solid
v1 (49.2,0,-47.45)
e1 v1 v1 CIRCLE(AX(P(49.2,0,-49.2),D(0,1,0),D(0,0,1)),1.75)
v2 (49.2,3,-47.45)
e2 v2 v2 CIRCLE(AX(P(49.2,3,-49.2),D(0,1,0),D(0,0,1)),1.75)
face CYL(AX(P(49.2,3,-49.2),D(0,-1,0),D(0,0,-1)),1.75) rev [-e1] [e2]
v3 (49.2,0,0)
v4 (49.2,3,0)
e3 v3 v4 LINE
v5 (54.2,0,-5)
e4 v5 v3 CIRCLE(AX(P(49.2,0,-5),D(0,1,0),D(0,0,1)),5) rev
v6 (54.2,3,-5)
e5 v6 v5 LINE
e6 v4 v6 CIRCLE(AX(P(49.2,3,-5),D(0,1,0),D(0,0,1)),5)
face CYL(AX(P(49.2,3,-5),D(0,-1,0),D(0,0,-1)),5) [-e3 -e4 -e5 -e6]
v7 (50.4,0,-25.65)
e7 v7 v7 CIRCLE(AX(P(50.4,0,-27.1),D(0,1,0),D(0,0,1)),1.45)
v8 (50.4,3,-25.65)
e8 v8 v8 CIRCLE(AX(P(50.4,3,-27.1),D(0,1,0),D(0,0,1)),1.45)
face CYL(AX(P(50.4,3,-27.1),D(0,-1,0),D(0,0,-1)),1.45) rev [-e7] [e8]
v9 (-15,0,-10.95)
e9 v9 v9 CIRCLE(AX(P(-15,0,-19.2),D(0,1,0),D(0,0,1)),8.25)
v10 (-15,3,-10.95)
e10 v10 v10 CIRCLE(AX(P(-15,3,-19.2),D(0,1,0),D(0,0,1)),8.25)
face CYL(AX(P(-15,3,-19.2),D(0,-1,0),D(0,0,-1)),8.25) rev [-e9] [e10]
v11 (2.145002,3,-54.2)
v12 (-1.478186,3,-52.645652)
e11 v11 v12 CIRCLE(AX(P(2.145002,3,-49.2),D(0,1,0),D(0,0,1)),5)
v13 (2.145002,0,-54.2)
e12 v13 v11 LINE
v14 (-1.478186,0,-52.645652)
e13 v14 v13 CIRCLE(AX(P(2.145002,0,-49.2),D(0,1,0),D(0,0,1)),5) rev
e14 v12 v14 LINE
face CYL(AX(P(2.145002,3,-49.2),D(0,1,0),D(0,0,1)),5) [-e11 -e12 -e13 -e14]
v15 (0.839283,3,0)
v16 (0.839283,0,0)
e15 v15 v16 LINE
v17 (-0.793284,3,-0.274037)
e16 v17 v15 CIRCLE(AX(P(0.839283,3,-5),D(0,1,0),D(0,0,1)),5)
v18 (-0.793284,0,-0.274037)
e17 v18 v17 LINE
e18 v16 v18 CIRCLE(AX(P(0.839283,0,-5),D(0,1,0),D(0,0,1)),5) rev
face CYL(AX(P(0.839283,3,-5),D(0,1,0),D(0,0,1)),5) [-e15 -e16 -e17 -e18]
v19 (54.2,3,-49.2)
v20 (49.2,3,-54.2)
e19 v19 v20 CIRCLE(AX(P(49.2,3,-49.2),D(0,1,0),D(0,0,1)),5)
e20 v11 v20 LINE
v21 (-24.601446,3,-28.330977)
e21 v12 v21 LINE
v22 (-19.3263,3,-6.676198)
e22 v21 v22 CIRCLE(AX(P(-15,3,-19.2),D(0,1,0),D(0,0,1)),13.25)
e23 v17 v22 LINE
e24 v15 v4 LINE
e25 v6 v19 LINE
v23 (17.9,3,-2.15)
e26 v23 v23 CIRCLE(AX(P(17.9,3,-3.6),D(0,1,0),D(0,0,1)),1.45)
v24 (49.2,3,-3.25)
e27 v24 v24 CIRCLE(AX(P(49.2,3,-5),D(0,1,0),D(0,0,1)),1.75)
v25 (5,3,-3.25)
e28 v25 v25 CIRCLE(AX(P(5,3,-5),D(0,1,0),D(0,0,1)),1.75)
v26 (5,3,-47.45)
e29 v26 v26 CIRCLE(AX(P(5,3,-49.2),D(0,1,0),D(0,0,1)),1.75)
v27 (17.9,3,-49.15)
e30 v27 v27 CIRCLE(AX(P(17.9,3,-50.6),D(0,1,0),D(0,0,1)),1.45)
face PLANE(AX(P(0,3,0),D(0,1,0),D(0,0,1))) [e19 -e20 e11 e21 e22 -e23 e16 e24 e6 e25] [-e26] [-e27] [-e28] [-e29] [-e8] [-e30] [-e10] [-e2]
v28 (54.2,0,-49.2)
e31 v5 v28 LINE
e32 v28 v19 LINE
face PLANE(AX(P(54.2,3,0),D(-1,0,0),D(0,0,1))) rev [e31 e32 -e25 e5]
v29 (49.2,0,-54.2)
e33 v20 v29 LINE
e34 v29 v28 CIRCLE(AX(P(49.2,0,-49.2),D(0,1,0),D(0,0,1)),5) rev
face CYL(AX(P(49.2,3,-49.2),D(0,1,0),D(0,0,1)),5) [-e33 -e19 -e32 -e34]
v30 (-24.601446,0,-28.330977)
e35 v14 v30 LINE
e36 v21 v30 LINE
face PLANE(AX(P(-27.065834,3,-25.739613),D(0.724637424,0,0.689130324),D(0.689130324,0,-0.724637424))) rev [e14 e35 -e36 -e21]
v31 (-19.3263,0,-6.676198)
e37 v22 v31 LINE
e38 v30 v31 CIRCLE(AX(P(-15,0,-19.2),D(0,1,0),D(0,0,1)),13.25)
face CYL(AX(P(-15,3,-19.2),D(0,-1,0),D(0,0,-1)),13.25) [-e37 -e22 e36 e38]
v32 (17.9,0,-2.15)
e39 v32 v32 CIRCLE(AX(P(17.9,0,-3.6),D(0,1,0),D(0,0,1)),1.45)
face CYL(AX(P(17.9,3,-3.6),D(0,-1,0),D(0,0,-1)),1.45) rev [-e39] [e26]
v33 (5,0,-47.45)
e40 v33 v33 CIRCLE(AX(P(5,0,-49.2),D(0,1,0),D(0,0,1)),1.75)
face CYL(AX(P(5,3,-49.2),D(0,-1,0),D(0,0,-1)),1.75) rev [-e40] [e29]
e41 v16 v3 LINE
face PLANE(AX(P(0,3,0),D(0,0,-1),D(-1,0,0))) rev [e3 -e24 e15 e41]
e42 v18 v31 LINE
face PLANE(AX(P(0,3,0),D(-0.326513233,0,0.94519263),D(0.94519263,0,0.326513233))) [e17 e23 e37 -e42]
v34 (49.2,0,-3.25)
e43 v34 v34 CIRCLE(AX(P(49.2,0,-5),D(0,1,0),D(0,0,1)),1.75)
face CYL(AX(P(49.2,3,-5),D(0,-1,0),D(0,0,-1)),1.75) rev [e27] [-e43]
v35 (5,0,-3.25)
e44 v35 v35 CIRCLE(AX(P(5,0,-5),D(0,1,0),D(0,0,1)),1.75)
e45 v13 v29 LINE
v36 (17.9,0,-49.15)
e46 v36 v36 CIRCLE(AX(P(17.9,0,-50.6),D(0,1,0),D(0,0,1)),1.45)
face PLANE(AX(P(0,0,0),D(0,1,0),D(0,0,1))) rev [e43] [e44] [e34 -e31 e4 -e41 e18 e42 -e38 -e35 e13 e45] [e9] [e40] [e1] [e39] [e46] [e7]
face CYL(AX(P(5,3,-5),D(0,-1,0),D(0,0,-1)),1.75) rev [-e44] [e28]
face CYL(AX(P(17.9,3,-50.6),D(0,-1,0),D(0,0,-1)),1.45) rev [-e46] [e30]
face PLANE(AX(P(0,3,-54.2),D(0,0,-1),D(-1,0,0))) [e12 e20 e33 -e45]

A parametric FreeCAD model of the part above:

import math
import FreeCAD as App
import Part
import Sketcher

V = App.Vector


def edges_at(feature, points):
    """Names of the edges that pass closest to the given points."""
    edges = feature.Shape.Edges
    near = lambda p: min(range(len(edges)), key=lambda i: edges[i].distToShape(Part.Vertex(*p))[0])
    return sorted({f"Edge{near(p) + 1}" for p in points})

doc = App.newDocument("Part")
body = doc.addObject("PartDesign::Body", "Body")

sketch1 = doc.addObject("Sketcher::SketchObject", "Sketch")
body.addObject(sketch1)
sketch1.AttachmentSupport = (doc.XZ_Plane, [""])
sketch1.MapMode = "FlatFace"
sketch1.addGeometry([
    Part.LineSegment(V(54.2, -54.2, 0), V(0, -54.2, 0)),
    Part.LineSegment(V(0, -54.2, 0), V(-24.6, -28.3, 0)),
    Part.ArcOfCircle(Part.Circle(V(-15, -19.2, 0), V(0, 0, 1), 13.3), math.radians(109), math.radians(224)),
    Part.LineSegment(V(-19.3, -6.7, 0), V(0, 0, 0)),
    Part.LineSegment(V(0, 0, 0), V(54.2, 0, 0)),
    Part.LineSegment(V(54.2, 0, 0), V(54.2, -54.2, 0)),
    Part.Circle(V(5, -5, 0), V(0, 0, 1), 1.8),
    Part.Circle(V(-15, -19.2, 0), V(0, 0, 1), 8.2),
    Part.Circle(V(17.9, -3.6, 0), V(0, 0, 1), 1.4),
    Part.Circle(V(49.2, -5, 0), V(0, 0, 1), 1.8),
    Part.Circle(V(50.4, -27.1, 0), V(0, 0, 1), 1.4),
    Part.Circle(V(5, -49.2, 0), V(0, 0, 1), 1.8),
    Part.Circle(V(17.9, -50.6, 0), V(0, 0, 1), 1.4),
    Part.Circle(V(49.2, -49.2, 0), V(0, 0, 1), 1.8),
], False)
sketch1.addConstraint([
    Sketcher.Constraint("Coincident", 0, 2, 1, 1),
    Sketcher.Constraint("Tangent", 1, 2, 2, 2),
    Sketcher.Constraint("Tangent", 2, 1, 3, 1),
    Sketcher.Constraint("Coincident", 3, 2, 4, 1),
    Sketcher.Constraint("Coincident", 4, 2, 5, 1),
    Sketcher.Constraint("Coincident", 5, 2, 0, 1),
    Sketcher.Constraint("Horizontal", 0),
    Sketcher.Constraint("Horizontal", 4),
    Sketcher.Constraint("Vertical", 5),
    Sketcher.Constraint("Coincident", 3, 2, -1, 1),
    Sketcher.Constraint("Coincident", 7, 3, 2, 3),
    Sketcher.Constraint("Equal", 6, 9),
    Sketcher.Constraint("Equal", 8, 10),
    Sketcher.Constraint("Equal", 9, 11),
    Sketcher.Constraint("Equal", 10, 12),
    Sketcher.Constraint("Equal", 11, 13),
    Sketcher.Constraint("PointOnObject", 0, 2, -2),
    Sketcher.Constraint("Horizontal", 6, 3, 9, 3),
    Sketcher.Constraint("Horizontal", 11, 3, 13, 3),
    Sketcher.Constraint("Vertical", 6, 3, 11, 3),
    Sketcher.Constraint("Vertical", 8, 3, 12, 3),
    Sketcher.Constraint("Vertical", 9, 3, 13, 3),
    Sketcher.Constraint("Equal", 4, 5),
    Sketcher.Constraint("Diameter", 6, 3.5),
    Sketcher.Constraint("Diameter", 7, 16.5),
    Sketcher.Constraint("Diameter", 8, 2.9),
    Sketcher.Constraint("Radius", 2, 13.25),
    Sketcher.Constraint("DistanceX", 0, 2, 0, 1, 54.2),
    Sketcher.Constraint("DistanceX", 2, 3, -1, 1, 15.0),
    Sketcher.Constraint("DistanceX", -1, 1, 6, 3, 5.0),
    Sketcher.Constraint("DistanceY", 6, 3, -1, 1, 5.0),
    Sketcher.Constraint("DistanceY", 11, 3, 2, 3, 30.0),
    Sketcher.Constraint("DistanceY", 12, 3, 8, 3, 47.0),
    Sketcher.Constraint("DistanceY", 0, 2, 11, 3, 5.0),
    Sketcher.Constraint("DistanceX", 9, 3, 4, 2, 5.0),
    Sketcher.Constraint("DistanceX", -1, 1, 8, 3, 17.9),
    Sketcher.Constraint("DistanceY", 8, 3, -1, 1, 3.6),
    Sketcher.Constraint("DistanceX", -1, 1, 10, 3, 50.4),
    Sketcher.Constraint("DistanceY", 10, 3, -1, 1, 27.1),
])
pad1 = doc.addObject("PartDesign::Pad", "Pad")
body.addObject(pad1)
pad1.Profile = sketch1
pad1.Length = 3
pad1.Reversed = True
doc.recompute()

fillet = doc.addObject("PartDesign::Fillet", "Fillet")
body.addObject(fillet)
fillet.Base = (pad1, edges_at(pad1, [
    (0, 1.5, 0),
    (0, 1.5, -54.2),
    (54.2, 1.5, -54.2),
    (54.2, 1.5, 0),
]))
fillet.Radius = 5

doc.recompute()
